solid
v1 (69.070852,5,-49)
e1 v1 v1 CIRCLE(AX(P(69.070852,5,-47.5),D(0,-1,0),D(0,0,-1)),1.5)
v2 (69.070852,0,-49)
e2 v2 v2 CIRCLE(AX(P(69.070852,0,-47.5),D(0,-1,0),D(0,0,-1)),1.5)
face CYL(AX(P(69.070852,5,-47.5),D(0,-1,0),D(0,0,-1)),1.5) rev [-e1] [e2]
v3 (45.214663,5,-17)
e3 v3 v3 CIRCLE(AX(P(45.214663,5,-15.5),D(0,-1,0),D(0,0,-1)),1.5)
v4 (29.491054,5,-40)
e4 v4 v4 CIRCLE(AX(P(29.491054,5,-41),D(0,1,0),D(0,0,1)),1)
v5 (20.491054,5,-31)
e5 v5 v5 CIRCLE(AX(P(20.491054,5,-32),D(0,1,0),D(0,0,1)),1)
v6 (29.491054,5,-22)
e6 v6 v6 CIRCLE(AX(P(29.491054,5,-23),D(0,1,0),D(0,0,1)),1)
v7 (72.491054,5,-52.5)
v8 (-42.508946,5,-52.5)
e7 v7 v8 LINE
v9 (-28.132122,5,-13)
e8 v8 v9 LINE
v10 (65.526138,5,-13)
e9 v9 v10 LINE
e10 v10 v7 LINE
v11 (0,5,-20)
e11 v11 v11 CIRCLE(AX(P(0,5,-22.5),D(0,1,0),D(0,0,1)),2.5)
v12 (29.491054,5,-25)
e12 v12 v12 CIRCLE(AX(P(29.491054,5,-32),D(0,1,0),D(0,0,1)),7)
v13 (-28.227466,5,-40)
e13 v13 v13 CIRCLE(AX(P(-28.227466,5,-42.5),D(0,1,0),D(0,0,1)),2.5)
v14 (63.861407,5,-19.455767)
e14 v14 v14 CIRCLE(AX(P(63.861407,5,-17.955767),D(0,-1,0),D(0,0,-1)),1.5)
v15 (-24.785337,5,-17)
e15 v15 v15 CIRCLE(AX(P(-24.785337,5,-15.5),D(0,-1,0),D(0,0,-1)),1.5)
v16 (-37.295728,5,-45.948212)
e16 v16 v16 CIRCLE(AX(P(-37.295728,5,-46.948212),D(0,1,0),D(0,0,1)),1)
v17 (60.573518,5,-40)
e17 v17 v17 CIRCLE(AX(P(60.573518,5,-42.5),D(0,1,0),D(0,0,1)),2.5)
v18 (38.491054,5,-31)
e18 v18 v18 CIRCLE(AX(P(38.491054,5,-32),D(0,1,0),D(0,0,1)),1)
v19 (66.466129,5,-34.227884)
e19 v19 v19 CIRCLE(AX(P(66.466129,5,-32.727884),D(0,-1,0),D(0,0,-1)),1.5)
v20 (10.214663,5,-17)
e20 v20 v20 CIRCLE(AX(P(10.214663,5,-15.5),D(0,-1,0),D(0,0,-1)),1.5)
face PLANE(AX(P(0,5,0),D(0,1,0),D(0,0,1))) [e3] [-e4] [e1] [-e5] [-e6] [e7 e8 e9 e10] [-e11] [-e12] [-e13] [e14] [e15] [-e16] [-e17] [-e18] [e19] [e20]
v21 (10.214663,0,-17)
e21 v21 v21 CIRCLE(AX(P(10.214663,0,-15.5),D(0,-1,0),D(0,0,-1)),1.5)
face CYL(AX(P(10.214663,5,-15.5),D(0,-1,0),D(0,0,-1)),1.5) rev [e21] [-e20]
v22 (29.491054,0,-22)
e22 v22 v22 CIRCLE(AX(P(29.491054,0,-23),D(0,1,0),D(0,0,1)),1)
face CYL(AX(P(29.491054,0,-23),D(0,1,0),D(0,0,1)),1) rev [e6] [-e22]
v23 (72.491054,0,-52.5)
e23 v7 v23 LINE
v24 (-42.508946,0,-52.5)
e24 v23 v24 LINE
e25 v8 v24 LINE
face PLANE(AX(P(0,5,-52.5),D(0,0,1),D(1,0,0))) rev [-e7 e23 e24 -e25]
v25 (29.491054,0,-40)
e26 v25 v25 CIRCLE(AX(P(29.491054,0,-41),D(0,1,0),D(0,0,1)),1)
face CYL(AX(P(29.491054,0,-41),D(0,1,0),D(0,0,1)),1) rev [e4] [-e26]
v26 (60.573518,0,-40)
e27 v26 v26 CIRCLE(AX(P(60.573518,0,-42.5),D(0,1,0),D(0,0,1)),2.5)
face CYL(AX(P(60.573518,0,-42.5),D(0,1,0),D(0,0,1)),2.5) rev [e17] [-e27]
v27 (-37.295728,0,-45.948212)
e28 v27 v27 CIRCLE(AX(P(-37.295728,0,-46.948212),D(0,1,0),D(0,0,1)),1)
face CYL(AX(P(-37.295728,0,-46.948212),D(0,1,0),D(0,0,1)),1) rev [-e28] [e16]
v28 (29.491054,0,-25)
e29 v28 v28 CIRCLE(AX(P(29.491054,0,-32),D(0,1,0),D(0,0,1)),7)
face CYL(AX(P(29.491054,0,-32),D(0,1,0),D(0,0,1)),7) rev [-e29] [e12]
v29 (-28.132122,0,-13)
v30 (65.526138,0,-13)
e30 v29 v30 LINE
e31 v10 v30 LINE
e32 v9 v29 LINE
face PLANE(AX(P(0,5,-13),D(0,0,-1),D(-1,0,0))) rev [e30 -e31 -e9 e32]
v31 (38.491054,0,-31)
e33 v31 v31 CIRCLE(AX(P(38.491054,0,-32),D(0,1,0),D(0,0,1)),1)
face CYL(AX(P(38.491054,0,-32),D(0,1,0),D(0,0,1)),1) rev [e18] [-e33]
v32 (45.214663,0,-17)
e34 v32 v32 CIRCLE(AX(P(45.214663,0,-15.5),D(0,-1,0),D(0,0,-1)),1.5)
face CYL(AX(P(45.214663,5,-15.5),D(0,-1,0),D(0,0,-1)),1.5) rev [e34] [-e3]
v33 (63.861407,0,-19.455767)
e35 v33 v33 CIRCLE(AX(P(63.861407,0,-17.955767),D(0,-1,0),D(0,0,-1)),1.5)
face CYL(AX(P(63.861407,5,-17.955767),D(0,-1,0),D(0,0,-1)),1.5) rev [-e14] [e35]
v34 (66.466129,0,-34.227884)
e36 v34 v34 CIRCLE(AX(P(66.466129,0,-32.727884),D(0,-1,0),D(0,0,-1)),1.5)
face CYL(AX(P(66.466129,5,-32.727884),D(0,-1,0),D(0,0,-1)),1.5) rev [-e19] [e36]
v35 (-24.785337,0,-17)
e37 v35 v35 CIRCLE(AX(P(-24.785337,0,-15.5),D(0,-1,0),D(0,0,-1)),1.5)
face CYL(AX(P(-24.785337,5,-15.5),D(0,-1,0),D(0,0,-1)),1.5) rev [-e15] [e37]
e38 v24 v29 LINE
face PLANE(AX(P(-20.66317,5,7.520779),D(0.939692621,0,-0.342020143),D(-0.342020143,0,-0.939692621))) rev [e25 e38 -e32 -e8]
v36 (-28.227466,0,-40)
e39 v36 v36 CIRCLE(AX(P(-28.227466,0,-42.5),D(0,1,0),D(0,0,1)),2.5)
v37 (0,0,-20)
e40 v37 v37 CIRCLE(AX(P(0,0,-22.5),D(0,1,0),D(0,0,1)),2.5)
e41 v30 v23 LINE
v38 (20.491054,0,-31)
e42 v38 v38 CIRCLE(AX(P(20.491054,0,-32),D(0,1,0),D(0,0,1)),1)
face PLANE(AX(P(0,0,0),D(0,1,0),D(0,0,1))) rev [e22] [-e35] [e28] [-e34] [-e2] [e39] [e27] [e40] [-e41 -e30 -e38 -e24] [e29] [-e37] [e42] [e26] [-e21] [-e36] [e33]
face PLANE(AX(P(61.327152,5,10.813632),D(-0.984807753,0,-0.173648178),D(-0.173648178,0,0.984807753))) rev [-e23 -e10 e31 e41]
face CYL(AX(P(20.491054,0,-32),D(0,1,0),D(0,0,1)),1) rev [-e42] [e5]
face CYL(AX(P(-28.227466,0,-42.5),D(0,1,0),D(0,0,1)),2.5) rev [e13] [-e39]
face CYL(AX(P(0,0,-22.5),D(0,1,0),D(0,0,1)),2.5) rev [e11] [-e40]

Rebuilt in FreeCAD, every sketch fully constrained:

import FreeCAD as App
import Part
import Sketcher
from FreeCAD import Vector
Q = App.Units.Quantity

doc = App.newDocument("Part")
body = doc.addObject("PartDesign::Body", "Body")

sketch1 = body.newObject("Sketcher::SketchObject", "Sketch")
sketch1.AttachmentSupport = (doc.getObject("XZ_Plane"), [""])
sketch1.MapMode = "FlatFace"
sketch1.addGeometry(Part.LineSegment(Vector(72, -52, 0), Vector(-43, -52, 0)), False)
sketch1.addGeometry(Part.LineSegment(Vector(-43, -52, 0), Vector(-28, -13, 0)), False)
sketch1.addGeometry(Part.LineSegment(Vector(-28, -13, 0), Vector(66, -13, 0)), False)
sketch1.addGeometry(Part.LineSegment(Vector(66, -13, 0), Vector(72, -52, 0)), False)
sketch1.addConstraint(Sketcher.Constraint("Coincident", 0, 2, 1, 1))
sketch1.addConstraint(Sketcher.Constraint("Coincident", 1, 2, 2, 1))
sketch1.addConstraint(Sketcher.Constraint("Coincident", 2, 2, 3, 1))
sketch1.addConstraint(Sketcher.Constraint("Coincident", 3, 2, 0, 1))
sketch1.addConstraint(Sketcher.Constraint("Horizontal", 0))
sketch1.addConstraint(Sketcher.Constraint("Horizontal", 2))
sketch1.addConstraint(Sketcher.Constraint("DistanceX", 0, 2, 0, 1, Q("115 mm")))
sketch1.addConstraint(Sketcher.Constraint("Angle", 1, Q("70 deg")))
sketch1.addConstraint(Sketcher.Constraint("Angle", 3, Q("-80 deg")))
sketch1.addConstraint(Sketcher.Constraint("DistanceY", 1, 2, -1, 1, Q("13 mm")))
sketch1.addConstraint(Sketcher.Constraint("DistanceY", 0, 2, -1, 1, Q("52.5 mm")))
sketch1.addConstraint(Sketcher.Constraint("DistanceX", 0, 2, -1, 1, Q("42.508946 mm")))
pad1 = body.newObject("PartDesign::Pad", "Pad")
pad1.Profile = sketch1
pad1.Length = 5
pad1.Reversed = True

sketch2 = body.newObject("Sketcher::SketchObject", "Sketch001")
sketch2.AttachmentSupport = (doc.getObject("XZ_Plane"), [""])
sketch2.MapMode = "FlatFace"
sketch2.AttachmentOffset = App.Placement(Vector(0, 0, -5), App.Rotation())
sketch2.addGeometry(Part.Circle(Vector(-28.2, -42.5, 0), Vector(0, 0, 1), 2.5), False)
sketch2.addGeometry(Part.Circle(Vector(0, -22.5, 0), Vector(0, 0, 1), 2.5), False)
sketch2.addGeometry(Part.Circle(Vector(60.6, -42.5, 0), Vector(0, 0, 1), 2.5), False)
sketch2.addConstraint(Sketcher.Constraint("Equal", 0, 1))
sketch2.addConstraint(Sketcher.Constraint("Equal", 1, 2))
sketch2.addConstraint(Sketcher.Constraint("PointOnObject", 1, 3, -2))
sketch2.addConstraint(Sketcher.Constraint("Horizontal", 0, 3, 2, 3))
sketch2.addConstraint(Sketcher.Constraint("Diameter", 0, Q("5 mm")))
sketch2.addConstraint(Sketcher.Constraint("DistanceY", 0, 3, 1, 3, Q("20 mm")))
sketch2.addConstraint(Sketcher.Constraint("DistanceY", 0, 3, -1, 1, Q("42.5 mm")))
sketch2.addConstraint(Sketcher.Constraint("DistanceX", 0, 3, -1, 1, Q("28.227466 mm")))
sketch2.addConstraint(Sketcher.Constraint("DistanceX", -1, 1, 2, 3, Q("60.573518 mm")))
pocket1 = body.newObject("PartDesign::Pocket", "Pocket")
pocket1.Profile = sketch2
pocket1.Length = 5
pocket1.Reversed = True

sketch3 = body.newObject("Sketcher::SketchObject", "Sketch002")
sketch3.AttachmentSupport = (doc.getObject("XZ_Plane"), [""])
sketch3.MapMode = "FlatFace"
sketch3.AttachmentOffset = App.Placement(Vector(0, 0, -5), App.Rotation())
sketch3.addGeometry(Part.Circle(Vector(29.5, -32, 0), Vector(0, 0, 1), 7), False)
sketch3.addGeometry(Part.Circle(Vector(20.5, -32, 0), Vector(0, 0, 1), 1), False)
sketch3.addGeometry(Part.Circle(Vector(29.5, -41, 0), Vector(0, 0, 1), 1), False)
sketch3.addGeometry(Part.Circle(Vector(38.5, -32, 0), Vector(0, 0, 1), 1), False)
sketch3.addGeometry(Part.Circle(Vector(29.5, -23, 0), Vector(0, 0, 1), 1), False)
sketch3.addConstraint(Sketcher.Constraint("Equal", 1, 2))
sketch3.addConstraint(Sketcher.Constraint("Equal", 2, 3))
sketch3.addConstraint(Sketcher.Constraint("Equal", 3, 4))
sketch3.addConstraint(Sketcher.Constraint("Horizontal", 0, 3, 1, 3))
sketch3.addConstraint(Sketcher.Constraint("Horizontal", 1, 3, 3, 3))
sketch3.addConstraint(Sketcher.Constraint("Vertical", 0, 3, 2, 3))
sketch3.addConstraint(Sketcher.Constraint("Vertical", 2, 3, 4, 3))
sketch3.addConstraint(Sketcher.Constraint("Diameter", 0, Q("14 mm")))
sketch3.addConstraint(Sketcher.Constraint("Diameter", 1, Q("2 mm")))
sketch3.addConstraint(Sketcher.Constraint("DistanceY", 0, 3, -1, 1, Q("32 mm")))
sketch3.addConstraint(Sketcher.Constraint("DistanceY", 2, 3, -1, 1, Q("41 mm")))
sketch3.addConstraint(Sketcher.Constraint("DistanceY", 4, 3, -1, 1, Q("23 mm")))
sketch3.addConstraint(Sketcher.Constraint("DistanceX", 1, 3, 0, 3, Q("9 mm")))
sketch3.addConstraint(Sketcher.Constraint("DistanceX", 0, 3, 3, 3, Q("9 mm")))
sketch3.addConstraint(Sketcher.Constraint("DistanceX", -1, 1, 0, 3, Q("29.491054 mm")))
pocket2 = body.newObject("PartDesign::Pocket", "Pocket001")
pocket2.Profile = sketch3
pocket2.Type = "ThroughAll"
pocket2.Reversed = True

sketch4 = body.newObject("Sketcher::SketchObject", "Sketch003")
sketch4.AttachmentSupport = (doc.getObject("XZ_Plane"), [""])
sketch4.MapMode = "FlatFace"
sketch4.addGeometry(Part.Circle(Vector(-24.8, -15.5, 0), Vector(0, 0, 1), 1.5), False)
sketch4.addGeometry(Part.Circle(Vector(10.2, -15.5, 0), Vector(0, 0, 1), 1.5), False)
sketch4.addGeometry(Part.Circle(Vector(45.2, -15.5, 0), Vector(0, 0, 1), 1.5), False)
sketch4.addGeometry(Part.Circle(Vector(63.9, -18, 0), Vector(0, 0, 1), 1.5), False)
sketch4.addGeometry(Part.Circle(Vector(66.5, -32.7, 0), Vector(0, 0, 1), 1.5), False)
sketch4.addGeometry(Part.Circle(Vector(69.1, -47.5, 0), Vector(0, 0, 1), 1.5), False)
sketch4.addConstraint(Sketcher.Constraint("Equal", 0, 1))
sketch4.addConstraint(Sketcher.Constraint("Equal", 1, 2))
sketch4.addConstraint(Sketcher.Constraint("Equal", 2, 3))
sketch4.addConstraint(Sketcher.Constraint("Equal", 3, 4))
sketch4.addConstraint(Sketcher.Constraint("Equal", 4, 5))
sketch4.addConstraint(Sketcher.Constraint("Horizontal", 0, 3, 1, 3))
sketch4.addConstraint(Sketcher.Constraint("Horizontal", 1, 3, 2, 3))
sketch4.addConstraint(Sketcher.Constraint("Diameter", 0, Q("3 mm")))
sketch4.addConstraint(Sketcher.Constraint("DistanceX", 0, 3, 1, 3, Q("35 mm")))
sketch4.addConstraint(Sketcher.Constraint("DistanceX", 1, 3, 2, 3, Q("35 mm")))
sketch4.addConstraint(Sketcher.Constraint("DistanceY", 5, 3, 2, 3, Q("32 mm")))
sketch4.addConstraint(Sketcher.Constraint("DistanceY", 0, 3, -1, 1, Q("15.5 mm")))
sketch4.addConstraint(Sketcher.Constraint("DistanceX", -1, 1, 4, 3, Q("66.466129 mm")))
sketch4.addConstraint(Sketcher.Constraint("DistanceX", 2, 3, 5, 3, Q("23.856189 mm")))
sketch4.addConstraint(Sketcher.Constraint("DistanceX", 0, 3, -1, 1, Q("24.785337 mm")))
sketch4.addConstraint(Sketcher.Constraint("DistanceX", -1, 1, 3, 3, Q("63.861407 mm")))
sketch4.addConstraint(Sketcher.Constraint("DistanceY", 3, 3, -1, 1, Q("17.955767 mm")))
sketch4.addConstraint(Sketcher.Constraint("DistanceY", 4, 3, -1, 1, Q("32.727884 mm")))
pocket3 = body.newObject("PartDesign::Pocket", "Pocket002")
pocket3.Profile = sketch4
pocket3.Type = "ThroughAll"

sketch5 = body.newObject("Sketcher::SketchObject", "Sketch004")
sketch5.AttachmentSupport = (doc.getObject("XZ_Plane"), [""])
sketch5.MapMode = "FlatFace"
sketch5.AttachmentOffset = App.Placement(Vector(0, 0, -5), App.Rotation())
sketch5.addGeometry(Part.Circle(Vector(-37.3, -46.9, 0), Vector(0, 0, 1), 1), False)
sketch5.addConstraint(Sketcher.Constraint("Diameter", 0, Q("2 mm")))
sketch5.addConstraint(Sketcher.Constraint("DistanceX", 0, 3, -1, 1, Q("37.295728 mm")))
sketch5.addConstraint(Sketcher.Constraint("DistanceY", 0, 3, -1, 1, Q("46.948212 mm")))
pocket4 = body.newObject("PartDesign::Pocket", "Pocket003")
pocket4.Profile = sketch5
pocket4.Type = "ThroughAll"
pocket4.Reversed = True

doc.recompute()
